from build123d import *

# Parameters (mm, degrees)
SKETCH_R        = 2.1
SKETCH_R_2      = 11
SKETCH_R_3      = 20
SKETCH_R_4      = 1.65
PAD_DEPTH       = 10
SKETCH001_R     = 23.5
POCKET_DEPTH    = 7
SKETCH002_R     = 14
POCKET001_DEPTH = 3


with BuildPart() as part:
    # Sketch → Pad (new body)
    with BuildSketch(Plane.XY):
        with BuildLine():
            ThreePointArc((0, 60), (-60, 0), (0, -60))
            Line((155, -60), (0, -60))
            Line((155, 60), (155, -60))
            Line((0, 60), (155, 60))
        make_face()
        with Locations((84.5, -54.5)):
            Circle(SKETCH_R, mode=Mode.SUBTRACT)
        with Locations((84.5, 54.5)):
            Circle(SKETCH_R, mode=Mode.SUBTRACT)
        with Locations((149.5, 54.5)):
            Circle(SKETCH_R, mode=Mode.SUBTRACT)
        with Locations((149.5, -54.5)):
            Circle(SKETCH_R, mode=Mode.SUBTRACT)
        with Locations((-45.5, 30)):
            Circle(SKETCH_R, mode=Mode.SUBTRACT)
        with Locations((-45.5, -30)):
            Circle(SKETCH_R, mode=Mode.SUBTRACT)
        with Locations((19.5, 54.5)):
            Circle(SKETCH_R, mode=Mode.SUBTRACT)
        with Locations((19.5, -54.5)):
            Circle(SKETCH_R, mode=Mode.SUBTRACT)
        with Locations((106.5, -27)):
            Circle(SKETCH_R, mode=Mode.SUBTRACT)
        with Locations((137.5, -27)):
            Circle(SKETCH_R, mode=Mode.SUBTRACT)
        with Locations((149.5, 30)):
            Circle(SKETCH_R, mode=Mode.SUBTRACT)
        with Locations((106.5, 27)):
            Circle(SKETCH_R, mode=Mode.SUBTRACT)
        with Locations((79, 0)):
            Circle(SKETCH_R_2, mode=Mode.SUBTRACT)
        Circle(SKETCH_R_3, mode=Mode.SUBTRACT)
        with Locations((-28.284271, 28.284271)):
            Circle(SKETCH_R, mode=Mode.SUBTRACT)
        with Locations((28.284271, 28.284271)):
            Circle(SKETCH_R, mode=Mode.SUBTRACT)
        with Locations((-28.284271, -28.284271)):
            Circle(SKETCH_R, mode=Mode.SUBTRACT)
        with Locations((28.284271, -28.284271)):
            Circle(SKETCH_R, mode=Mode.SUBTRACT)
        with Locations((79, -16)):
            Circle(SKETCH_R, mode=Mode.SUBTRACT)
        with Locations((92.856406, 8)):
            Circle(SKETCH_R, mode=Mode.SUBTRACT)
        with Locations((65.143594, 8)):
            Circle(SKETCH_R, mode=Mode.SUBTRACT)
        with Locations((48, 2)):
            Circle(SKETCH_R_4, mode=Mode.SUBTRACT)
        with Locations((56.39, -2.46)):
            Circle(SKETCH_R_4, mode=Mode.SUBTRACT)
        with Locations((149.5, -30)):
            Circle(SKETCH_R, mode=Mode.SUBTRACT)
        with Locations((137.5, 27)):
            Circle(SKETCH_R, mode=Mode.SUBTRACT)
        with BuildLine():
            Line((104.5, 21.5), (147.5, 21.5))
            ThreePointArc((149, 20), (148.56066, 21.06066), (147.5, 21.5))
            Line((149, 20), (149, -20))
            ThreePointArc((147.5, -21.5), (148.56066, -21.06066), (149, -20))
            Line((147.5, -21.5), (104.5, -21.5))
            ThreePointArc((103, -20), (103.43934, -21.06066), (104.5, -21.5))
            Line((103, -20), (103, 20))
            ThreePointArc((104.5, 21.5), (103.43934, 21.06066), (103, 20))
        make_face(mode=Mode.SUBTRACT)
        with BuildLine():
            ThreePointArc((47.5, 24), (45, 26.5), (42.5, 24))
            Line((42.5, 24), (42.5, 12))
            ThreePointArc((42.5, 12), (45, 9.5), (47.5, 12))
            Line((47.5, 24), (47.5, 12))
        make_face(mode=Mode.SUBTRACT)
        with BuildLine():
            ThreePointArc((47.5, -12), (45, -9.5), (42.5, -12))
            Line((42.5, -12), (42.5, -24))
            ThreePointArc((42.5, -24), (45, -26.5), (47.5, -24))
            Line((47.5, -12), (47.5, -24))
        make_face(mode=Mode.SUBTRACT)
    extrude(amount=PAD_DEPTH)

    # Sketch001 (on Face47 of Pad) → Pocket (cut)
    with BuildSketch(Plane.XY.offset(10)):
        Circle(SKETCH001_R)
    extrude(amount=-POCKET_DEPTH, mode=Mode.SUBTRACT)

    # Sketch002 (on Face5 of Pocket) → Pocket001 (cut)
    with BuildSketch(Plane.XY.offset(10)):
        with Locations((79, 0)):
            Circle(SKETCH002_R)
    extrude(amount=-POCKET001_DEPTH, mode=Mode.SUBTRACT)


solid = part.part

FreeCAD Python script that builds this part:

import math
import FreeCAD as App
import Part
import Sketcher

V = App.Vector

doc = App.newDocument("Part")
body = doc.addObject("PartDesign::Body", "Body")

sketch1 = body.newObject("Sketcher::SketchObject", "Sketch")
sketch1.AttachmentSupport = (doc.getObject("XY_Plane"), [""])
sketch1.MapMode = "FlatFace"
sketch1.addGeometry(Part.ArcOfCircle(Part.Circle(V(0, 0, 0), V(0, 0, 1), 60), math.radians(90), math.radians(270)), False)
sketch1.addGeometry(Part.LineSegment(V(0, -60, 0), V(155, -60, 0)), False)
sketch1.addGeometry(Part.LineSegment(V(155, -60, 0), V(155, 60, 0)), False)
sketch1.addGeometry(Part.LineSegment(V(155, 60, 0), V(0, 60, 0)), False)
sketch1.addGeometry(Part.Circle(V(-45.5, -30, 0), V(0, 0, 1), 2.1), False)
sketch1.addGeometry(Part.Circle(V(19.5, -54.5, 0), V(0, 0, 1), 2.1), False)
sketch1.addGeometry(Part.Circle(V(-28.3, -28.3, 0), V(0, 0, 1), 2.1), False)
sketch1.addGeometry(Part.Circle(V(28.3, -28.3, 0), V(0, 0, 1), 2.1), False)
sketch1.addGeometry(Part.ArcOfCircle(Part.Circle(V(45, -12, 0), V(0, 0, 1), 2.5), math.radians(0), math.radians(180)), False)
sketch1.addGeometry(Part.LineSegment(V(47.5, -12, 0), V(47.5, -24, 0)), False)
sketch1.addGeometry(Part.ArcOfCircle(Part.Circle(V(45, -24, 0), V(0, 0, 1), 2.5), math.radians(180), math.radians(360)), False)
sketch1.addGeometry(Part.LineSegment(V(42.5, -24, 0), V(42.5, -12, 0)), False)
sketch1.addGeometry(Part.Circle(V(84.5, -54.5, 0), V(0, 0, 1), 2.1), False)
sketch1.addGeometry(Part.Circle(V(149.5, -54.5, 0), V(0, 0, 1), 2.1), False)
sketch1.addGeometry(Part.Circle(V(149.5, -30, 0), V(0, 0, 1), 2.1), False)
sketch1.addGeometry(Part.Circle(V(79, -16, 0), V(0, 0, 1), 2.1), False)
sketch1.addGeometry(Part.Circle(V(56.4, -2.5, 0), V(0, 0, 1), 1.6), False)
sketch1.addGeometry(Part.Circle(V(106.5, -27, 0), V(0, 0, 1), 2.1), False)
sketch1.addGeometry(Part.Circle(V(137.5, -27, 0), V(0, 0, 1), 2.1), False)
sketch1.addGeometry(Part.Circle(V(0, 0, 0), V(0, 0, 1), 20), False)
sketch1.addGeometry(Part.Circle(V(-28.3, 28.3, 0), V(0, 0, 1), 2.1), False)
sketch1.addGeometry(Part.Circle(V(48, 2, 0), V(0, 0, 1), 1.6), False)
sketch1.addGeometry(Part.ArcOfCircle(Part.Circle(V(45, 24, 0), V(0, 0, 1), 2.5), math.radians(0), math.radians(180)), False)
sketch1.addGeometry(Part.LineSegment(V(47.5, 24, 0), V(47.5, 12, 0)), False)
sketch1.addGeometry(Part.ArcOfCircle(Part.Circle(V(45, 12, 0), V(0, 0, 1), 2.5), math.radians(180), math.radians(360)), False)
sketch1.addGeometry(Part.LineSegment(V(42.5, 12, 0), V(42.5, 24, 0)), False)
sketch1.addGeometry(Part.Circle(V(28.3, 28.3, 0), V(0, 0, 1), 2.1), False)
sketch1.addGeometry(Part.Circle(V(-45.5, 30, 0), V(0, 0, 1), 2.1), False)
sketch1.addGeometry(Part.Circle(V(19.5, 54.5, 0), V(0, 0, 1), 2.1), False)
sketch1.addGeometry(Part.Circle(V(65.1, 8, 0), V(0, 0, 1), 2.1), False)
sketch1.addGeometry(Part.Circle(V(79, 0, 0), V(0, 0, 1), 11), False)
sketch1.addGeometry(Part.Circle(V(92.9, 8, 0), V(0, 0, 1), 2.1), False)
sketch1.addGeometry(Part.ArcOfCircle(Part.Circle(V(104.5, 20, 0), V(0, 0, 1), 1.5), math.radians(90), math.radians(180)), False)
sketch1.addGeometry(Part.LineSegment(V(104.5, 21.5, 0), V(147.5, 21.5, 0)), False)
sketch1.addGeometry(Part.ArcOfCircle(Part.Circle(V(147.5, 20, 0), V(0, 0, 1), 1.5), math.radians(0), math.radians(90)), False)
sketch1.addGeometry(Part.LineSegment(V(149, 20, 0), V(149, -20, 0)), False)
sketch1.addGeometry(Part.ArcOfCircle(Part.Circle(V(147.5, -20, 0), V(0, 0, 1), 1.5), math.radians(-90), math.radians(0)), False)
sketch1.addGeometry(Part.LineSegment(V(147.5, -21.5, 0), V(104.5, -21.5, 0)), False)
sketch1.addGeometry(Part.ArcOfCircle(Part.Circle(V(104.5, -20, 0), V(0, 0, 1), 1.5), math.radians(-180), math.radians(-90)), False)
sketch1.addGeometry(Part.LineSegment(V(103, -20, 0), V(103, 20, 0)), False)
sketch1.addGeometry(Part.Circle(V(106.5, 27, 0), V(0, 0, 1), 2.1), False)
sketch1.addGeometry(Part.Circle(V(137.5, 27, 0), V(0, 0, 1), 2.1), False)
sketch1.addGeometry(Part.Circle(V(84.5, 54.5, 0), V(0, 0, 1), 2.1), False)
sketch1.addGeometry(Part.Circle(V(149.5, 30, 0), V(0, 0, 1), 2.1), False)
sketch1.addGeometry(Part.Circle(V(149.5, 54.5, 0), V(0, 0, 1), 2.1), False)
sketch1.addConstraint(Sketcher.Constraint("Tangent", 0, 2, 1, 1))
sketch1.addConstraint(Sketcher.Constraint("Coincident", 1, 2, 2, 1))
sketch1.addConstraint(Sketcher.Constraint("Coincident", 2, 2, 3, 1))
sketch1.addConstraint(Sketcher.Constraint("Tangent", 3, 2, 0, 1))
sketch1.addConstraint(Sketcher.Constraint("Tangent", 8, 1, 9, 1))
sketch1.addConstraint(Sketcher.Constraint("Tangent", 9, 2, 10, 2))
sketch1.addConstraint(Sketcher.Constraint("Tangent", 10, 1, 11, 1))
sketch1.addConstraint(Sketcher.Constraint("Tangent", 11, 2, 8, 2))
sketch1.addConstraint(Sketcher.Constraint("Tangent", 22, 1, 23, 1))
sketch1.addConstraint(Sketcher.Constraint("Tangent", 23, 2, 24, 2))
sketch1.addConstraint(Sketcher.Constraint("Tangent", 24, 1, 25, 1))
sketch1.addConstraint(Sketcher.Constraint("Tangent", 25, 2, 22, 2))
sketch1.addConstraint(Sketcher.Constraint("Tangent", 32, 1, 33, 1))
sketch1.addConstraint(Sketcher.Constraint("Tangent", 33, 2, 34, 2))
sketch1.addConstraint(Sketcher.Constraint("Tangent", 34, 1, 35, 1))
sketch1.addConstraint(Sketcher.Constraint("Tangent", 35, 2, 36, 2))
sketch1.addConstraint(Sketcher.Constraint("Tangent", 36, 1, 37, 1))
sketch1.addConstraint(Sketcher.Constraint("Tangent", 37, 2, 38, 2))
sketch1.addConstraint(Sketcher.Constraint("Tangent", 38, 1, 39, 1))
sketch1.addConstraint(Sketcher.Constraint("Tangent", 39, 2, 32, 2))
sketch1.addConstraint(Sketcher.Constraint("Horizontal", 1))
sketch1.addConstraint(Sketcher.Constraint("Vertical", 2))
sketch1.addConstraint(Sketcher.Constraint("Horizontal", 3))
sketch1.addConstraint(Sketcher.Constraint("Vertical", 9))
sketch1.addConstraint(Sketcher.Constraint("Vertical", 11))
sketch1.addConstraint(Sketcher.Constraint("Vertical", 23))
sketch1.addConstraint(Sketcher.Constraint("Vertical", 25))
sketch1.addConstraint(Sketcher.Constraint("Horizontal", 33))
sketch1.addConstraint(Sketcher.Constraint("Vertical", 35))
sketch1.addConstraint(Sketcher.Constraint("Horizontal", 37))
sketch1.addConstraint(Sketcher.Constraint("Vertical", 39))
sketch1.addConstraint(Sketcher.Constraint("Coincident", 0, 3, -1, 1))
sketch1.addConstraint(Sketcher.Constraint("Coincident", 19, 3, -1, 1))
sketch1.addConstraint(Sketcher.Constraint("Equal", 4, 5))
sketch1.addConstraint(Sketcher.Constraint("Equal", 5, 6))
sketch1.addConstraint(Sketcher.Constraint("Equal", 6, 7))
sketch1.addConstraint(Sketcher.Constraint("Equal", 7, 12))
sketch1.addConstraint(Sketcher.Constraint("Equal", 12, 13))
sketch1.addConstraint(Sketcher.Constraint("Equal", 13, 14))
sketch1.addConstraint(Sketcher.Constraint("Equal", 14, 15))
sketch1.addConstraint(Sketcher.Constraint("Equal", 15, 17))
sketch1.addConstraint(Sketcher.Constraint("Equal", 17, 18))
sketch1.addConstraint(Sketcher.Constraint("Equal", 18, 20))
sketch1.addConstraint(Sketcher.Constraint("Equal", 16, 21))
sketch1.addConstraint(Sketcher.Constraint("Equal", 10, 22))
sketch1.addConstraint(Sketcher.Constraint("Equal", 20, 26))
sketch1.addConstraint(Sketcher.Constraint("Equal", 26, 27))
sketch1.addConstraint(Sketcher.Constraint("Equal", 27, 28))
sketch1.addConstraint(Sketcher.Constraint("Equal", 28, 29))
sketch1.addConstraint(Sketcher.Constraint("Equal", 29, 31))
sketch1.addConstraint(Sketcher.Constraint("Equal", 32, 34))
sketch1.addConstraint(Sketcher.Constraint("Equal", 34, 36))
sketch1.addConstraint(Sketcher.Constraint("Equal", 36, 38))
sketch1.addConstraint(Sketcher.Constraint("Equal", 31, 40))
sketch1.addConstraint(Sketcher.Constraint("Equal", 40, 41))
sketch1.addConstraint(Sketcher.Constraint("Equal", 41, 42))
sketch1.addConstraint(Sketcher.Constraint("Equal", 42, 43))
sketch1.addConstraint(Sketcher.Constraint("Equal", 43, 44))
sketch1.addConstraint(Sketcher.Constraint("Symmetric", 7, 3, 20, 3, -1, 1))
sketch1.addConstraint(Sketcher.Constraint("Symmetric", 6, 3, 26, 3, -1, 1))
sketch1.addConstraint(Sketcher.Constraint("Symmetric", 6, 3, 7, 3, -2))
sketch1.addConstraint(Sketcher.Constraint("Symmetric", 10, 3, 22, 3, -1))
sketch1.addConstraint(Sketcher.Constraint("Symmetric", 4, 3, 27, 3, -1))
sketch1.addConstraint(Sketcher.Constraint("Symmetric", 5, 3, 28, 3, -1))
sketch1.addConstraint(Sketcher.Constraint("Symmetric", 17, 3, 40, 3, -1))
sketch1.addConstraint(Sketcher.Constraint("Symmetric", 18, 3, 41, 3, -1))
sketch1.addConstraint(Sketcher.Constraint("Symmetric", 12, 3, 42, 3, -1))
sketch1.addConstraint(Sketcher.Constraint("Symmetric", 14, 3, 43, 3, -1))
sketch1.addConstraint(Sketcher.Constraint("Symmetric", 13, 3, 44, 3, -1))
sketch1.addConstraint(Sketcher.Constraint("PointOnObject", 30, 3, -1))
sketch1.addConstraint(Sketcher.Constraint("Horizontal", 5, 3, 12, 3))
sketch1.addConstraint(Sketcher.Constraint("Horizontal", 12, 3, 13, 3))
sketch1.addConstraint(Sketcher.Constraint("Horizontal", 4, 3, 14, 3))
sketch1.addConstraint(Sketcher.Constraint("Horizontal", 17, 3, 18, 3))
sketch1.addConstraint(Sketcher.Constraint("Horizontal", 29, 3, 31, 3))
sketch1.addConstraint(Sketcher.Constraint("Vertical", 13, 3, 14, 3))
sketch1.addConstraint(Sketcher.Constraint("Vertical", 15, 3, 30, 3))
sketch1.addConstraint(Sketcher.Constraint("Equal", 11, 23))
sketch1.addConstraint(Sketcher.Constraint("Diameter", 19, 40.0))
sketch1.addConstraint(Sketcher.Constraint("Diameter", 30, 22.0))
sketch1.addConstraint(Sketcher.Constraint("Radius", 0, 60.0))
sketch1.addConstraint(Sketcher.Constraint("Diameter", 4, 4.2))
sketch1.addConstraint(Sketcher.Constraint("Diameter", 16, 3.3))
sketch1.addConstraint(Sketcher.Constraint("Radius", 8, 2.5))
sketch1.addConstraint(Sketcher.Constraint("Radius", 32, 1.500001))
sketch1.addConstraint(Sketcher.Constraint("DistanceX", 1, 1, 1, 2, 155.0))
sketch1.addConstraint(Sketcher.Constraint("DistanceX", 33, 1, 33, 2, 43.0))
sketch1.addConstraint(Sketcher.Constraint("DistanceY", 9, 2, 9, 1, 12.0))
sketch1.addConstraint(Sketcher.Constraint("DistanceY", 35, 2, 35, 1, 40.0))
sketch1.addConstraint(Sketcher.Constraint("DistanceY", 4, 3, -1, 1, 30.0))
sketch1.addConstraint(Sketcher.Constraint("DistanceX", -1, 1, 8, 3, 45.0))
sketch1.addConstraint(Sketcher.Constraint("DistanceY", 8, 3, -1, 1, 12.0))
sketch1.addConstraint(Sketcher.Constraint("DistanceX", -1, 1, 15, 3, 79.0))
sketch1.addConstraint(Sketcher.Constraint("DistanceY", 15, 3, -1, 1, 16.0))
sketch1.addConstraint(Sketcher.Constraint("DistanceY", 17, 3, -1, 1, 27.0))
sketch1.addConstraint(Sketcher.Constraint("DistanceX", -1, 1, 21, 3, 48.0))
sketch1.addConstraint(Sketcher.Constraint("DistanceY", -1, 1, 21, 3, 2.0))
sketch1.addConstraint(Sketcher.Constraint("DistanceY", -1, 1, 29, 3, 8.0))
sketch1.addConstraint(Sketcher.Constraint("DistanceY", -1, 1, 32, 3, 19.999999))
sketch1.addConstraint(Sketcher.Constraint("DistanceX", -1, 1, 34, 1, 149.0))
sketch1.addConstraint(Sketcher.Constraint("DistanceX", 4, 3, 5, 3, 65.0))
sketch1.addConstraint(Sketcher.Constraint("DistanceX", 5, 3, 12, 3, 65.0))
sketch1.addConstraint(Sketcher.Constraint("DistanceX", 12, 3, 13, 3, 65.0))
sketch1.addConstraint(Sketcher.Constraint("DistanceX", 12, 3, 17, 3, 22.0))
sketch1.addConstraint(Sketcher.Constraint("DistanceX", 18, 3, 14, 3, 12.0))
sketch1.addConstraint(Sketcher.Constraint("DistanceX", 32, 3, 17, 3, 1.999999))
sketch1.addConstraint(Sketcher.Constraint("DistanceY", 33, 2, 44, 3, 33.0))
sketch1.addConstraint(Sketcher.Constraint("DistanceX", -1, 1, 16, 3, 56.39))
sketch1.addConstraint(Sketcher.Constraint("DistanceY", 16, 3, -1, 1, 2.46))
sketch1.addConstraint(Sketcher.Constraint("DistanceX", 6, 3, -1, 1, 28.284271))
sketch1.addConstraint(Sketcher.Constraint("DistanceY", 6, 3, -1, 1, 28.284271))
sketch1.addConstraint(Sketcher.Constraint("DistanceX", -1, 1, 29, 3, 65.143594))
sketch1.addConstraint(Sketcher.Constraint("DistanceX", -1, 1, 31, 3, 92.856406))
pad1 = body.newObject("PartDesign::Pad", "Pad")
pad1.Profile = sketch1
pad1.Length = 10

sketch2 = body.newObject("Sketcher::SketchObject", "Sketch001")
sketch2.AttachmentSupport = (doc.getObject("XY_Plane"), [""])
sketch2.MapMode = "FlatFace"
sketch2.AttachmentOffset = App.Placement(V(0, 0, 10), App.Rotation())
sketch2.addGeometry(Part.Circle(V(0, 0, 0), V(0, 0, 1), 24), False)
sketch2.addConstraint(Sketcher.Constraint("Coincident", 0, 3, -1, 1))
sketch2.addConstraint(Sketcher.Constraint("Diameter", 0, 47.0))
pocket1 = body.newObject("PartDesign::Pocket", "Pocket")
pocket1.Profile = sketch2
pocket1.Length = 7

sketch3 = body.newObject("Sketcher::SketchObject", "Sketch002")
sketch3.AttachmentSupport = (doc.getObject("XY_Plane"), [""])
sketch3.MapMode = "FlatFace"
sketch3.AttachmentOffset = App.Placement(V(0, 0, 10), App.Rotation())
sketch3.addGeometry(Part.Circle(V(79, 0, 0), V(0, 0, 1), 14), False)
sketch3.addConstraint(Sketcher.Constraint("PointOnObject", 0, 3, -1))
sketch3.addConstraint(Sketcher.Constraint("Diameter", 0, 28.0))
sketch3.addConstraint(Sketcher.Constraint("DistanceX", -1, 1, 0, 3, 79.0))
pocket2 = body.newObject("PartDesign::Pocket", "Pocket001")
pocket2.Profile = sketch3
pocket2.Length = 3

doc.recompute()
